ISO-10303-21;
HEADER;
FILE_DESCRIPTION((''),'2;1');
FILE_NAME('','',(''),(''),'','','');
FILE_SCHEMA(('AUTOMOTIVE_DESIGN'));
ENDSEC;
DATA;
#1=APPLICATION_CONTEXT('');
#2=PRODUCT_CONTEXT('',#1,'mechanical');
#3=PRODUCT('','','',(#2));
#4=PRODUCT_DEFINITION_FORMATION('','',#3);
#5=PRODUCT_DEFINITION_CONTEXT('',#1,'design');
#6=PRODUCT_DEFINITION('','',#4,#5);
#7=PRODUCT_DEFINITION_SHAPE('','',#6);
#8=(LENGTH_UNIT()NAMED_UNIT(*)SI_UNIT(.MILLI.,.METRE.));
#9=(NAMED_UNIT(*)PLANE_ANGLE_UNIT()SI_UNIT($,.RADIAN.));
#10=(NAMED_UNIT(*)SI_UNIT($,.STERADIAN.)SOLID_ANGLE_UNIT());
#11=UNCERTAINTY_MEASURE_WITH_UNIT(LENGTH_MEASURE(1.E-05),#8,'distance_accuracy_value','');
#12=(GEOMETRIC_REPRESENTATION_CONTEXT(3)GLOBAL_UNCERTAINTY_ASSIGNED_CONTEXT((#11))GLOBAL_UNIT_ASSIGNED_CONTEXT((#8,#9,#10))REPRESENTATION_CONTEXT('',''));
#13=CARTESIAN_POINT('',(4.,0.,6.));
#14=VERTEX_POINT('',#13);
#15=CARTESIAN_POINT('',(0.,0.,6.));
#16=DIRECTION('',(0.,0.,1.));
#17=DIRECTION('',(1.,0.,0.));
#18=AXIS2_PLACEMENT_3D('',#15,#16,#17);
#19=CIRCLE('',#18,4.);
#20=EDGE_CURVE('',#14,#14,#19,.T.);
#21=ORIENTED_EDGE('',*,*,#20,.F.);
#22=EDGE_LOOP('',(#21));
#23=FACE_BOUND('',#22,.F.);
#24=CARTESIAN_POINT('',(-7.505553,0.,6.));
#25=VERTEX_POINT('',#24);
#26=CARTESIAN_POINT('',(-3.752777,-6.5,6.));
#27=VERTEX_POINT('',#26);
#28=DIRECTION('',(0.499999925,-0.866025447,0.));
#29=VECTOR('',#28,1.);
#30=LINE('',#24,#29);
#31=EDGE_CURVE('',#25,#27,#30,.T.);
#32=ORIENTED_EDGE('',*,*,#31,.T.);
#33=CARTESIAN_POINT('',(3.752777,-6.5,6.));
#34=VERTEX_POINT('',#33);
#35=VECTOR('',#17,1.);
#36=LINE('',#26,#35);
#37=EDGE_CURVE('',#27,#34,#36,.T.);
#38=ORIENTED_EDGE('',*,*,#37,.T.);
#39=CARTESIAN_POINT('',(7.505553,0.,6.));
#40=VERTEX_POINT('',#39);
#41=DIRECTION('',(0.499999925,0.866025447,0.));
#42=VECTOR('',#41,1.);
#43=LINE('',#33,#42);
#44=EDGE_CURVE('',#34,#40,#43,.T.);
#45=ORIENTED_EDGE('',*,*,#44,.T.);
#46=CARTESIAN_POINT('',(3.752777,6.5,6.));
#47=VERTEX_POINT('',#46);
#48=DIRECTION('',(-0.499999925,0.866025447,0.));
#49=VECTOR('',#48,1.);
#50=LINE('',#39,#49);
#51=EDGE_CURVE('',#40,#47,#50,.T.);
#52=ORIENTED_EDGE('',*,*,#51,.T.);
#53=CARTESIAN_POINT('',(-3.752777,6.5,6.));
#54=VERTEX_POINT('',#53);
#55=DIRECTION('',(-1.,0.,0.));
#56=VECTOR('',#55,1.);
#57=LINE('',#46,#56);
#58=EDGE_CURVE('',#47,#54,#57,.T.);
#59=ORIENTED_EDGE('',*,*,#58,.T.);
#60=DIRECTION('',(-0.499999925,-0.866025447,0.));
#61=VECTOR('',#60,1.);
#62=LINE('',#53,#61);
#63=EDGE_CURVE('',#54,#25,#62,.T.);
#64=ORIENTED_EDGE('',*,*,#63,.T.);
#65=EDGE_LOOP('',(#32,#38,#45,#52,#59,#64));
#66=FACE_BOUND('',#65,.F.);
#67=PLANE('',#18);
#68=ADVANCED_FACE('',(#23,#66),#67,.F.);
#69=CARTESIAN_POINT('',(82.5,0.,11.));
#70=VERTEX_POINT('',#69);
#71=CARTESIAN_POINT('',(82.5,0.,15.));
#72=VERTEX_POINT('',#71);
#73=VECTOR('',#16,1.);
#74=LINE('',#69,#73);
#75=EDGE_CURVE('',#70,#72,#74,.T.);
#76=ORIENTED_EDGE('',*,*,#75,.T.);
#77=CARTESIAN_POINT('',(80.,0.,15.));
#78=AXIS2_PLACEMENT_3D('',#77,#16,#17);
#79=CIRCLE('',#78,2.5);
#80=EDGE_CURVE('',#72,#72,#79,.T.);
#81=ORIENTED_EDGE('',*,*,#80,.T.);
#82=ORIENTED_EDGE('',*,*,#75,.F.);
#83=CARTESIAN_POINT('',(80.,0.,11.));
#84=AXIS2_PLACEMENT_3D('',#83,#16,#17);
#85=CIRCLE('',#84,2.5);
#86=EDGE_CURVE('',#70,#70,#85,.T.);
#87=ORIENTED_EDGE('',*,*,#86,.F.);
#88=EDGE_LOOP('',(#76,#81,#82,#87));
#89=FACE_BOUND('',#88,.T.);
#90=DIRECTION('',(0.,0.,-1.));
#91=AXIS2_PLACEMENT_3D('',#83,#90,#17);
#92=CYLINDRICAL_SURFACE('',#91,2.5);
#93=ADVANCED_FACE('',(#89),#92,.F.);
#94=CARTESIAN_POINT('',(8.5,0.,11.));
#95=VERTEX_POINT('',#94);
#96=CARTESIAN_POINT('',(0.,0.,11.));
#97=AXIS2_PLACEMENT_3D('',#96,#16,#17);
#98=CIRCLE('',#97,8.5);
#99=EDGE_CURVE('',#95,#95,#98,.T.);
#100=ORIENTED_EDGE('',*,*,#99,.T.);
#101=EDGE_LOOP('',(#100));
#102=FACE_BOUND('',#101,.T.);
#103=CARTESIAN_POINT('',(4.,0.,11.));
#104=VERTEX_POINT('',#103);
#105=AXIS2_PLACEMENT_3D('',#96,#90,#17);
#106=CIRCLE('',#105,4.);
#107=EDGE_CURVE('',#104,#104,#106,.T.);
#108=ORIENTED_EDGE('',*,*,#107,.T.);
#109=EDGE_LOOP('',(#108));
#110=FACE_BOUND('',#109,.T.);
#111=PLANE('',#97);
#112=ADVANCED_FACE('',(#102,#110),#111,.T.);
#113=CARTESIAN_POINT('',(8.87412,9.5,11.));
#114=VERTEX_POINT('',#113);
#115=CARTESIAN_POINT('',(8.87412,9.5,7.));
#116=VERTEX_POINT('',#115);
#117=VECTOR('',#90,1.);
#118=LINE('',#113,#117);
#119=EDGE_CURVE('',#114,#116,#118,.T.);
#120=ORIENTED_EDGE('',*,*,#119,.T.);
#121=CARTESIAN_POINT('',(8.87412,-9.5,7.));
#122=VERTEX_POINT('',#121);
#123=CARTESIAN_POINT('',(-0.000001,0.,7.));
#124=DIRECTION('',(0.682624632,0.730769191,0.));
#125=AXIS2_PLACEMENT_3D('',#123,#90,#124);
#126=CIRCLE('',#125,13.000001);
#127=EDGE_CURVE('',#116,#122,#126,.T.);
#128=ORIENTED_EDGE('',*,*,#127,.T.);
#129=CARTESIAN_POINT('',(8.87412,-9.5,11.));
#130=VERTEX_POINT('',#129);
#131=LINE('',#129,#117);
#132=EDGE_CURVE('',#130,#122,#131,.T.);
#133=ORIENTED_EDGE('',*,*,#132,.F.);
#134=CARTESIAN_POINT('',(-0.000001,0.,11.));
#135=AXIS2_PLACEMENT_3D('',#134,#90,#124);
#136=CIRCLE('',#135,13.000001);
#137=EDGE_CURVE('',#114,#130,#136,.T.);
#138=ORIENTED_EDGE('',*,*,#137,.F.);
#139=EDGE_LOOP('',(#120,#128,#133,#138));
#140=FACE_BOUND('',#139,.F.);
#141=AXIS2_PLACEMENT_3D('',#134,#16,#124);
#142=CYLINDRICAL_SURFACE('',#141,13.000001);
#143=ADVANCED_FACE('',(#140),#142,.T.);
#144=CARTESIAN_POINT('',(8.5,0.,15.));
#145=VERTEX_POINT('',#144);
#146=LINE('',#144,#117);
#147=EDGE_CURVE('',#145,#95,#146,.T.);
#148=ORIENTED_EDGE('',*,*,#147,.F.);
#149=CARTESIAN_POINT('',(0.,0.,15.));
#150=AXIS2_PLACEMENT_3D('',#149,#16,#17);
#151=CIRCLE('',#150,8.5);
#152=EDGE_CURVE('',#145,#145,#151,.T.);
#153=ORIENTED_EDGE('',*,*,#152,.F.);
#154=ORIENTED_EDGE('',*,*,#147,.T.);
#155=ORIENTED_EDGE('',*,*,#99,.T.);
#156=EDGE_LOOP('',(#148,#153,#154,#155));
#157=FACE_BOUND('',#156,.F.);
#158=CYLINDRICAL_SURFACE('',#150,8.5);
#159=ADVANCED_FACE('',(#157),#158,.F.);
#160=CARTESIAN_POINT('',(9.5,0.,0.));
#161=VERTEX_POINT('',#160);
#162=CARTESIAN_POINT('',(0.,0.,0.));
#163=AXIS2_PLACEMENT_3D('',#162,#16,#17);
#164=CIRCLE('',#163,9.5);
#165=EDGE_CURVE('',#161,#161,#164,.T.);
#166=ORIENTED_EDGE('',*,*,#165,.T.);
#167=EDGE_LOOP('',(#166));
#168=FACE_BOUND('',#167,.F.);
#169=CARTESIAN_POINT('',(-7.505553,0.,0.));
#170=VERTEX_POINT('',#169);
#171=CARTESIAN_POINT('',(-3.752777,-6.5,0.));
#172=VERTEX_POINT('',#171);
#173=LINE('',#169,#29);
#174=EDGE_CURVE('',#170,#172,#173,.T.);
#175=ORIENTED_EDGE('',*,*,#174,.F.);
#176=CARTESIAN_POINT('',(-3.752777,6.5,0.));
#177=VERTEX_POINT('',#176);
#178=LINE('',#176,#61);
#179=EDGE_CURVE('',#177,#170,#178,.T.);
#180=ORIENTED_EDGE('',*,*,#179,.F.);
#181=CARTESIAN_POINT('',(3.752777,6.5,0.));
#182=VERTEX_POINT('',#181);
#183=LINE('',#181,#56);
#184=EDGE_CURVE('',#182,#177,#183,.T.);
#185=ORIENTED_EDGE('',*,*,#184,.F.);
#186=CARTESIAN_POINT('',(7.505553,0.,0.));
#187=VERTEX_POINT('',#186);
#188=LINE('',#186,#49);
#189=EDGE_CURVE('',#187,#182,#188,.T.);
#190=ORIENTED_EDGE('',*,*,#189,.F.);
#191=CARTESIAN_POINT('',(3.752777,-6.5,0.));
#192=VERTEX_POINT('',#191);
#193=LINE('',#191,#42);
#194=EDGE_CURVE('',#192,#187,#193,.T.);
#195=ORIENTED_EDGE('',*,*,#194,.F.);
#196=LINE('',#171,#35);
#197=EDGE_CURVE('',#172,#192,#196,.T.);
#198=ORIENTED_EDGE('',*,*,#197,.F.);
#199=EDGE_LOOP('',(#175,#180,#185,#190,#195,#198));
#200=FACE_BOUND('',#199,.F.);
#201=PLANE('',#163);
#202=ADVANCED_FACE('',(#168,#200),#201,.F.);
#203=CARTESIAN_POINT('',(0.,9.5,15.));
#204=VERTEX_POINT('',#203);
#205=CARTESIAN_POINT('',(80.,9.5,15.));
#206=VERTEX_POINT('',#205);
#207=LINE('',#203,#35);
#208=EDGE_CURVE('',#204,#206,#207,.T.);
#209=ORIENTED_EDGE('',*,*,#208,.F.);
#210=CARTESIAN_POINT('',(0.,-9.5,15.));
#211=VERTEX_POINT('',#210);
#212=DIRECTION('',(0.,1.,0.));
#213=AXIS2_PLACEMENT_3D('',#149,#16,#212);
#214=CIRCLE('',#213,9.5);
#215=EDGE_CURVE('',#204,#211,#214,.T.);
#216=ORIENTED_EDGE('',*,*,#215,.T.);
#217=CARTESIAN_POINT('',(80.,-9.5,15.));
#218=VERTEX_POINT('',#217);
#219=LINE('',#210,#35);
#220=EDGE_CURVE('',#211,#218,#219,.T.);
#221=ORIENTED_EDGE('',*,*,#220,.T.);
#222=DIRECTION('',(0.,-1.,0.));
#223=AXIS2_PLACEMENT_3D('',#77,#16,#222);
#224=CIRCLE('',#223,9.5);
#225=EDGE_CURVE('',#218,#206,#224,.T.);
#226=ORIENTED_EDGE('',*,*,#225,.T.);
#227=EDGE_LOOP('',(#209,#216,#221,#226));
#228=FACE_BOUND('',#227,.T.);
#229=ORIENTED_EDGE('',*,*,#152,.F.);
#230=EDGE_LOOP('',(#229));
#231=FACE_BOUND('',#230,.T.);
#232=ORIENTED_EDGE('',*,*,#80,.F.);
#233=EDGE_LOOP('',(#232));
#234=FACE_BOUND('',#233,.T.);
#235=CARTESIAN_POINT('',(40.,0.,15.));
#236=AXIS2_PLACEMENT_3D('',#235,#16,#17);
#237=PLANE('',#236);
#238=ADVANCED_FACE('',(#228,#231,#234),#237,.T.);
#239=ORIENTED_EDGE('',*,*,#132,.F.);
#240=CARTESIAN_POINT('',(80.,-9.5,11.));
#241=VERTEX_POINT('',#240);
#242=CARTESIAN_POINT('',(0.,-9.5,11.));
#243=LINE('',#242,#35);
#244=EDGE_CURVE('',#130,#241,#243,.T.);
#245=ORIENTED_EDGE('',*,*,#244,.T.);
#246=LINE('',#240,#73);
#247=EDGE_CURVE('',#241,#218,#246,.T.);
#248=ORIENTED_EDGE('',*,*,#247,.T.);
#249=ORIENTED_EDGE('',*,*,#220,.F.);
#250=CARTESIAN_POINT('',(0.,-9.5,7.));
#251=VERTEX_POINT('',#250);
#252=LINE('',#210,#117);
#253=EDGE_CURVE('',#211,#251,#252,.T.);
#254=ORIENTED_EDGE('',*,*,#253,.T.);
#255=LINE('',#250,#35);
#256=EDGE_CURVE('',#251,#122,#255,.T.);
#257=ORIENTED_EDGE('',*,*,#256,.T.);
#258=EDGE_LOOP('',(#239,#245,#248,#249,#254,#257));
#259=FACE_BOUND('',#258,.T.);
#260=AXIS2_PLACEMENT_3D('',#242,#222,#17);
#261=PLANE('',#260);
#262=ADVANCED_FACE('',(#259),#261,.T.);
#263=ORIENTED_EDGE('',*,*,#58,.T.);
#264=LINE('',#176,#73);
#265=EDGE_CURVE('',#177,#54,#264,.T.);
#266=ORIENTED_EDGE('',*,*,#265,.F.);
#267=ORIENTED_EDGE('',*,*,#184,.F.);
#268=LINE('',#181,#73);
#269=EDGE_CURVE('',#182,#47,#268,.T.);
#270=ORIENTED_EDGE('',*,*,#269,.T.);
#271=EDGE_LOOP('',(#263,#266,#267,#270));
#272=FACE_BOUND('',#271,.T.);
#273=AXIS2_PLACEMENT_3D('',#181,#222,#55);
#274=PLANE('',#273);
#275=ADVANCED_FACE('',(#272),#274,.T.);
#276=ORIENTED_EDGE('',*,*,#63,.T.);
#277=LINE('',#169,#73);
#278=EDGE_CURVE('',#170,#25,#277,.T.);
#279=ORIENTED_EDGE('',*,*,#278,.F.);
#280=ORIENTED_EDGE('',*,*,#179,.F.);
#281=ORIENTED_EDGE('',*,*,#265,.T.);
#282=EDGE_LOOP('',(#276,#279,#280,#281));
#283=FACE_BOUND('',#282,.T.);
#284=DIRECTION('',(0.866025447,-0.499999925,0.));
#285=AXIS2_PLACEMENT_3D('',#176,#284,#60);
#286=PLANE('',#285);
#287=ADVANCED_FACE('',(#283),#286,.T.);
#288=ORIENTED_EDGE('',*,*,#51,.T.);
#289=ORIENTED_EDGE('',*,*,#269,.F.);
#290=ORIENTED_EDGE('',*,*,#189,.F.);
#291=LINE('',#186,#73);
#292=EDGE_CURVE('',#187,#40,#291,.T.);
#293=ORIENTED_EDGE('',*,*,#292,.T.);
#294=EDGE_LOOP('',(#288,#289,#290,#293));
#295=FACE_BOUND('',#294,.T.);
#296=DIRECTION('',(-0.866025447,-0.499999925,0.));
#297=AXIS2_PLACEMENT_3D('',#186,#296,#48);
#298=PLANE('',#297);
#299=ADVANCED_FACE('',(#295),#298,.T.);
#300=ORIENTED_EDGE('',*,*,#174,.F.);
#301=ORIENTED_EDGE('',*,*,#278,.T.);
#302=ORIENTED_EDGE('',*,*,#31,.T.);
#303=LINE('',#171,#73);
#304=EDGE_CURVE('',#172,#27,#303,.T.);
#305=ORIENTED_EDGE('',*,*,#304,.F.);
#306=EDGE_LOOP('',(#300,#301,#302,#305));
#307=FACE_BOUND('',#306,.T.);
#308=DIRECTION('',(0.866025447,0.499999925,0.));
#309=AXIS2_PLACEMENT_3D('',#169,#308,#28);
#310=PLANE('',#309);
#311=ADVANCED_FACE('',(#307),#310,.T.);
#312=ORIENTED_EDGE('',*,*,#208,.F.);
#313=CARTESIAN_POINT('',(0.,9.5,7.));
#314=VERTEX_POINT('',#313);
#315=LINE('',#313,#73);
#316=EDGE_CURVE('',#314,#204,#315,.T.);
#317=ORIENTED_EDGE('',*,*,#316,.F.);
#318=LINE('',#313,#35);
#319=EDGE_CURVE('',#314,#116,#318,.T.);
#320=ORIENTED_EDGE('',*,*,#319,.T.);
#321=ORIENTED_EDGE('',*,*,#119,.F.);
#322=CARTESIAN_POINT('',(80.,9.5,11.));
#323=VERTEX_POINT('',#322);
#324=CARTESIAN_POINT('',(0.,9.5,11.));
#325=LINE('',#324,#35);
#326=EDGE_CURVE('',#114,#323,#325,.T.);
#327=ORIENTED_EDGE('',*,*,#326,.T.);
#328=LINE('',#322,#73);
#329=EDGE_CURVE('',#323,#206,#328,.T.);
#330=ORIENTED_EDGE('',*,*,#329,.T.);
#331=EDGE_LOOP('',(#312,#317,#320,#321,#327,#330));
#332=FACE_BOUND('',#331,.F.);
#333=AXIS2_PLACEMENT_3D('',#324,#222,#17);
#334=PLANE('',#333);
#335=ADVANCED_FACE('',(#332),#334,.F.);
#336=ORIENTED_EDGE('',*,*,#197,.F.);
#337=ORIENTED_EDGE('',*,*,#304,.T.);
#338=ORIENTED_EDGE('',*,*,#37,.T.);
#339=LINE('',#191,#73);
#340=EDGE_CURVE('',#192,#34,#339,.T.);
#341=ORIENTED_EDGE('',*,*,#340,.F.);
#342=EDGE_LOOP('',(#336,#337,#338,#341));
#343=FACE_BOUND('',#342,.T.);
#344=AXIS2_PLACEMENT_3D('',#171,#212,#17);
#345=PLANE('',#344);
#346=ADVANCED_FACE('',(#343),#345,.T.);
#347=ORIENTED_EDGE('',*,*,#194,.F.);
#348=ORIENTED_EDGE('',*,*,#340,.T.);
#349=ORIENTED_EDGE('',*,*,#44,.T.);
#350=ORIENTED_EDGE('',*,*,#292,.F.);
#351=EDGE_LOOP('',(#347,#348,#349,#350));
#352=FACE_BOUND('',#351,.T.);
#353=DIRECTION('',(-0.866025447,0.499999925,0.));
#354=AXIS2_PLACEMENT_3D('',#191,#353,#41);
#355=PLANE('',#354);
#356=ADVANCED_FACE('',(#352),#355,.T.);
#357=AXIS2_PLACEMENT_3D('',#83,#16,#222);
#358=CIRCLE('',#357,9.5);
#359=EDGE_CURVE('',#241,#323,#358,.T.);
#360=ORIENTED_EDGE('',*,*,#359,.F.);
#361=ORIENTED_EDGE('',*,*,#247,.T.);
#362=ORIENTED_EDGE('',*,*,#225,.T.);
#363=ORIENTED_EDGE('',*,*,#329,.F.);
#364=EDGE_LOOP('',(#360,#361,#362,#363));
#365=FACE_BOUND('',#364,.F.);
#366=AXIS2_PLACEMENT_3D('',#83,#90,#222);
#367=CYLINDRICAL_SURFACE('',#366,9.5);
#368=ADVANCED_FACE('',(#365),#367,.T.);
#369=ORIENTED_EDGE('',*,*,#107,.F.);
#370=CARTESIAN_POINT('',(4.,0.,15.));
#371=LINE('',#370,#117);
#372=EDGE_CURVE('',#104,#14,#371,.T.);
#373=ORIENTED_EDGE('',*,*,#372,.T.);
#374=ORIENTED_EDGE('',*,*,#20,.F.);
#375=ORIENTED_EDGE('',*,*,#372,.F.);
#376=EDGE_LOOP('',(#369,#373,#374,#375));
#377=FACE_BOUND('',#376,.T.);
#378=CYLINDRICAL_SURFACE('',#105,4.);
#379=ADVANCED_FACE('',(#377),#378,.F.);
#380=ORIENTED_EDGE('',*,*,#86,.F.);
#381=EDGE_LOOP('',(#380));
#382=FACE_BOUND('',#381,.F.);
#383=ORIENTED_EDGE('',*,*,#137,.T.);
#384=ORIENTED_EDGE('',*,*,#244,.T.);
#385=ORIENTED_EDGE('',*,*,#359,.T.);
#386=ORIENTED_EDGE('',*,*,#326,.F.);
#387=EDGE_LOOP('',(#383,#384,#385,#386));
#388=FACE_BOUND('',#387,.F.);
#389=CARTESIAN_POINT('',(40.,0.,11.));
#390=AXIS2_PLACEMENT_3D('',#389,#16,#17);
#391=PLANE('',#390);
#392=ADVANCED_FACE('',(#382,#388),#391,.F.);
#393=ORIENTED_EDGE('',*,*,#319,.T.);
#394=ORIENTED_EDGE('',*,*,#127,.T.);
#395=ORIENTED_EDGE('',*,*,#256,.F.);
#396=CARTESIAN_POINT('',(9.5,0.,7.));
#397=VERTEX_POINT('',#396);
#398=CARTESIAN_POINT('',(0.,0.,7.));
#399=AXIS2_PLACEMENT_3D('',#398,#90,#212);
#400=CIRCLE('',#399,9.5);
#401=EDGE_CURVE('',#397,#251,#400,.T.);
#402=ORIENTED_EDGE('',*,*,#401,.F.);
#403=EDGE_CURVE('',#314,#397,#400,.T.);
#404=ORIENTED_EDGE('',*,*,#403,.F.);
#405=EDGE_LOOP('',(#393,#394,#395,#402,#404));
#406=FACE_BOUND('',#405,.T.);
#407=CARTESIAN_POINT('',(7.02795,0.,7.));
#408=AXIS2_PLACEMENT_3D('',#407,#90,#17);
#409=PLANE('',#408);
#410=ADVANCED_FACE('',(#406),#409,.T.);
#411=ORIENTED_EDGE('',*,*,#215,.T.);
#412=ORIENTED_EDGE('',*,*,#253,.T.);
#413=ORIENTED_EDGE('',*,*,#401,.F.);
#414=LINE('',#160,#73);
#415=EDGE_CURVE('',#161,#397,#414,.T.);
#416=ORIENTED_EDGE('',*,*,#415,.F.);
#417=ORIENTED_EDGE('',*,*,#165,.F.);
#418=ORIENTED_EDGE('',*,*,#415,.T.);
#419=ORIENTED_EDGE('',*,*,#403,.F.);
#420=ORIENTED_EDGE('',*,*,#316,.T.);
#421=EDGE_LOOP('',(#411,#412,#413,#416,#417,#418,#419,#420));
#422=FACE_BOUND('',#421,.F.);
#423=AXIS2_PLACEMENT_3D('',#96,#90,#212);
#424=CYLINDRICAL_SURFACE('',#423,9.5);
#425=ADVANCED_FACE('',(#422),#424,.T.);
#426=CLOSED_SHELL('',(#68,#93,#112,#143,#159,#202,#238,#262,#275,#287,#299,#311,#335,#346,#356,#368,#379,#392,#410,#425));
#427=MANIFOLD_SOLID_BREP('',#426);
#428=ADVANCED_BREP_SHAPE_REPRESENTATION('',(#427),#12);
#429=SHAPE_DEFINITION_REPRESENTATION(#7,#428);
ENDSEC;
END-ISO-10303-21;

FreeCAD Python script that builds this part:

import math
import FreeCAD as App
import Part
import Sketcher

V = App.Vector
Q = App.Units.Quantity

doc = App.newDocument("Part")
body = doc.addObject("PartDesign::Body", "Body")

sketch1 = doc.addObject("Sketcher::SketchObject", "Sketch")
body.addObject(sketch1)
sketch1.AttachmentSupport = (doc.XY_Plane, [""])
sketch1.MapMode = "FlatFace"
sketch1.addGeometry([
    Part.Circle(V(0, 0, 0), V(0, 0, 1), 10),
    Part.LineSegment(V(-4, 6, 0), V(4, 6, 0)),
    Part.LineSegment(V(4, 6, 0), V(8, 0, 0)),
    Part.LineSegment(V(8, 0, 0), V(4, -6, 0)),
    Part.LineSegment(V(4, -6, 0), V(-4, -6, 0)),
    Part.LineSegment(V(-4, -6, 0), V(-8, 0, 0)),
    Part.LineSegment(V(-8, 0, 0), V(-4, 6, 0)),
], False)
sketch1.addConstraint([
    Sketcher.Constraint("Coincident", 1, 2, 2, 1),
    Sketcher.Constraint("Coincident", 2, 2, 3, 1),
    Sketcher.Constraint("Coincident", 3, 2, 4, 1),
    Sketcher.Constraint("Coincident", 4, 2, 5, 1),
    Sketcher.Constraint("Coincident", 5, 2, 6, 1),
    Sketcher.Constraint("Coincident", 6, 2, 1, 1),
    Sketcher.Constraint("Horizontal", 1),
    Sketcher.Constraint("Horizontal", 4),
    Sketcher.Constraint("Coincident", 0, 3, -1, 1),
    Sketcher.Constraint("Symmetric", 1, 2, 4, 2, -1, 1),
    Sketcher.Constraint("Symmetric", 2, 2, 5, 2, -1, 1),
    Sketcher.Constraint("PointOnObject", 2, 2, -1),
    Sketcher.Constraint("Parallel", 3, 6),
    Sketcher.Constraint("Vertical", 1, 2, 3, 2),
    Sketcher.Constraint("Diameter", 0, Q("19 mm")),
    Sketcher.Constraint("Angle", 2, Q("-60.000005 deg")),
    Sketcher.Constraint("DistanceY", 3, 2, 1, 2, Q("13 mm")),
    Sketcher.Constraint("DistanceX", 1, 1, 1, 2, Q("7.505554 mm")),
])
pad1 = doc.addObject("PartDesign::Pad", "Pad")
body.addObject(pad1)
pad1.Profile = sketch1
pad1.Length = 6

sketch2 = doc.addObject("Sketcher::SketchObject", "Sketch001")
body.addObject(sketch2)
sketch2.AttachmentSupport = (doc.XY_Plane, [""])
sketch2.MapMode = "FlatFace"
sketch2.AttachmentOffset = App.Placement(V(0, 0, 6), App.Rotation())
sketch2.addGeometry(Part.Circle(V(0, 0, 0), V(0, 0, 1), 10), False)
sketch2.addConstraint([
    Sketcher.Constraint("Coincident", 0, 3, -1, 1),
    Sketcher.Constraint("Diameter", 0, Q("19 mm")),
])
pad2 = doc.addObject("PartDesign::Pad", "Pad001")
body.addObject(pad2)
pad2.Profile = sketch2
pad2.Length = 5

sketch3 = doc.addObject("Sketcher::SketchObject", "Sketch002")
body.addObject(sketch3)
sketch3.AttachmentSupport = (doc.XY_Plane, [""])
sketch3.MapMode = "FlatFace"
sketch3.AttachmentOffset = App.Placement(V(0, 0, 11), App.Rotation())
sketch3.addGeometry(Part.Circle(V(0, 0, 0), V(0, 0, 1), 4), False)
sketch3.addConstraint([
    Sketcher.Constraint("Coincident", 0, 3, -1, 1),
    Sketcher.Constraint("Diameter", 0, Q("8 mm")),
])
pocket1 = doc.addObject("PartDesign::Pocket", "Pocket")
body.addObject(pocket1)
pocket1.Profile = sketch3
pocket1.Length = 5

sketch4 = doc.addObject("Sketcher::SketchObject", "Sketch003")
body.addObject(sketch4)
sketch4.AttachmentSupport = (doc.XY_Plane, [""])
sketch4.MapMode = "FlatFace"
sketch4.AttachmentOffset = App.Placement(V(0, 0, 11), App.Rotation())
sketch4.addGeometry([
    Part.ArcOfCircle(Part.Circle(V(0, 0, 0), V(0, 0, 1), 9.5), math.radians(90), math.radians(270)),
    Part.LineSegment(V(0, -9.5, 0), V(80, -9.5, 0)),
    Part.ArcOfCircle(Part.Circle(V(80, 0, 0), V(0, 0, 1), 9.5), math.radians(-90), math.radians(90)),
    Part.LineSegment(V(80, 9.5, 0), V(0, 9.5, 0)),
    Part.Circle(V(0, 0, 0), V(0, 0, 1), 4),
    Part.Circle(V(80, 0, 0), V(0, 0, 1), 2.5),
], False)
sketch4.addConstraint([
    Sketcher.Constraint("Tangent", 0, 2, 1, 1),
    Sketcher.Constraint("Tangent", 1, 2, 2, 1),
    Sketcher.Constraint("Tangent", 2, 2, 3, 1),
    Sketcher.Constraint("Tangent", 3, 2, 0, 1),
    Sketcher.Constraint("Horizontal", 1),
    Sketcher.Constraint("Horizontal", 3),
    Sketcher.Constraint("Coincident", 0, 3, -1, 1),
    Sketcher.Constraint("Coincident", 4, 3, -1, 1),
    Sketcher.Constraint("Coincident", 5, 3, 2, 3),
    Sketcher.Constraint("Diameter", 4, Q("8 mm")),
    Sketcher.Constraint("Diameter", 5, Q("5 mm")),
    Sketcher.Constraint("Radius", 0, Q("9.5 mm")),
    Sketcher.Constraint("DistanceX", 1, 1, 1, 2, Q("80 mm")),
])
pad3 = doc.addObject("PartDesign::Pad", "Pad002")
body.addObject(pad3)
pad3.Profile = sketch4
pad3.Length = 4

sketch5 = doc.addObject("Sketcher::SketchObject", "Sketch004")
body.addObject(sketch5)
sketch5.AttachmentSupport = (doc.XY_Plane, [""])
sketch5.MapMode = "FlatFace"
sketch5.AttachmentOffset = App.Placement(V(0, 0, 15), App.Rotation())
sketch5.addGeometry(Part.Circle(V(0, 0, 0), V(0, 0, 1), 8), False)
sketch5.addConstraint([
    Sketcher.Constraint("Coincident", 0, 3, -1, 1),
    Sketcher.Constraint("Diameter", 0, Q("17 mm")),
])
pocket2 = doc.addObject("PartDesign::Pocket", "Pocket001")
body.addObject(pocket2)
pocket2.Profile = sketch5
pocket2.Length = 4

sketch6 = doc.addObject("Sketcher::SketchObject", "Sketch005")
body.addObject(sketch6)
sketch6.AttachmentSupport = (doc.XY_Plane, [""])
sketch6.MapMode = "FlatFace"
sketch6.AttachmentOffset = App.Placement(V(0, 0, 11), App.Rotation())
sketch6.addGeometry([
    Part.ArcOfCircle(Part.Circle(V(0, 0, 0), V(0, 0, 1), 13), math.radians(-47), math.radians(47)),
    Part.LineSegment(V(9, -10, 0), V(0, -10, 0)),
    Part.ArcOfCircle(Part.Circle(V(0, 0, 0), V(0, 0, 1), 10), math.radians(-90), math.radians(90)),
    Part.LineSegment(V(0, 10, 0), V(9, 10, 0)),
], False)
sketch6.addConstraint([
    Sketcher.Constraint("Coincident", 0, 1, 1, 1),
    Sketcher.Constraint("Tangent", 1, 2, 2, 1),
    Sketcher.Constraint("Tangent", 2, 2, 3, 1),
    Sketcher.Constraint("Coincident", 3, 2, 0, 2),
    Sketcher.Constraint("Horizontal", 1),
    Sketcher.Constraint("Horizontal", 3),
    Sketcher.Constraint("Coincident", 0, 3, -1, 1),
    Sketcher.Constraint("Coincident", 2, 3, -1, 1),
    Sketcher.Constraint("Radius", 0, Q("13.000001 mm")),
    Sketcher.Constraint("Radius", 2, Q("9.5 mm")),
])
pad4 = doc.addObject("PartDesign::Pad", "Pad003")
body.addObject(pad4)
pad4.Profile = sketch6
pad4.Length = 4
pad4.Reversed = True

doc.recompute()
